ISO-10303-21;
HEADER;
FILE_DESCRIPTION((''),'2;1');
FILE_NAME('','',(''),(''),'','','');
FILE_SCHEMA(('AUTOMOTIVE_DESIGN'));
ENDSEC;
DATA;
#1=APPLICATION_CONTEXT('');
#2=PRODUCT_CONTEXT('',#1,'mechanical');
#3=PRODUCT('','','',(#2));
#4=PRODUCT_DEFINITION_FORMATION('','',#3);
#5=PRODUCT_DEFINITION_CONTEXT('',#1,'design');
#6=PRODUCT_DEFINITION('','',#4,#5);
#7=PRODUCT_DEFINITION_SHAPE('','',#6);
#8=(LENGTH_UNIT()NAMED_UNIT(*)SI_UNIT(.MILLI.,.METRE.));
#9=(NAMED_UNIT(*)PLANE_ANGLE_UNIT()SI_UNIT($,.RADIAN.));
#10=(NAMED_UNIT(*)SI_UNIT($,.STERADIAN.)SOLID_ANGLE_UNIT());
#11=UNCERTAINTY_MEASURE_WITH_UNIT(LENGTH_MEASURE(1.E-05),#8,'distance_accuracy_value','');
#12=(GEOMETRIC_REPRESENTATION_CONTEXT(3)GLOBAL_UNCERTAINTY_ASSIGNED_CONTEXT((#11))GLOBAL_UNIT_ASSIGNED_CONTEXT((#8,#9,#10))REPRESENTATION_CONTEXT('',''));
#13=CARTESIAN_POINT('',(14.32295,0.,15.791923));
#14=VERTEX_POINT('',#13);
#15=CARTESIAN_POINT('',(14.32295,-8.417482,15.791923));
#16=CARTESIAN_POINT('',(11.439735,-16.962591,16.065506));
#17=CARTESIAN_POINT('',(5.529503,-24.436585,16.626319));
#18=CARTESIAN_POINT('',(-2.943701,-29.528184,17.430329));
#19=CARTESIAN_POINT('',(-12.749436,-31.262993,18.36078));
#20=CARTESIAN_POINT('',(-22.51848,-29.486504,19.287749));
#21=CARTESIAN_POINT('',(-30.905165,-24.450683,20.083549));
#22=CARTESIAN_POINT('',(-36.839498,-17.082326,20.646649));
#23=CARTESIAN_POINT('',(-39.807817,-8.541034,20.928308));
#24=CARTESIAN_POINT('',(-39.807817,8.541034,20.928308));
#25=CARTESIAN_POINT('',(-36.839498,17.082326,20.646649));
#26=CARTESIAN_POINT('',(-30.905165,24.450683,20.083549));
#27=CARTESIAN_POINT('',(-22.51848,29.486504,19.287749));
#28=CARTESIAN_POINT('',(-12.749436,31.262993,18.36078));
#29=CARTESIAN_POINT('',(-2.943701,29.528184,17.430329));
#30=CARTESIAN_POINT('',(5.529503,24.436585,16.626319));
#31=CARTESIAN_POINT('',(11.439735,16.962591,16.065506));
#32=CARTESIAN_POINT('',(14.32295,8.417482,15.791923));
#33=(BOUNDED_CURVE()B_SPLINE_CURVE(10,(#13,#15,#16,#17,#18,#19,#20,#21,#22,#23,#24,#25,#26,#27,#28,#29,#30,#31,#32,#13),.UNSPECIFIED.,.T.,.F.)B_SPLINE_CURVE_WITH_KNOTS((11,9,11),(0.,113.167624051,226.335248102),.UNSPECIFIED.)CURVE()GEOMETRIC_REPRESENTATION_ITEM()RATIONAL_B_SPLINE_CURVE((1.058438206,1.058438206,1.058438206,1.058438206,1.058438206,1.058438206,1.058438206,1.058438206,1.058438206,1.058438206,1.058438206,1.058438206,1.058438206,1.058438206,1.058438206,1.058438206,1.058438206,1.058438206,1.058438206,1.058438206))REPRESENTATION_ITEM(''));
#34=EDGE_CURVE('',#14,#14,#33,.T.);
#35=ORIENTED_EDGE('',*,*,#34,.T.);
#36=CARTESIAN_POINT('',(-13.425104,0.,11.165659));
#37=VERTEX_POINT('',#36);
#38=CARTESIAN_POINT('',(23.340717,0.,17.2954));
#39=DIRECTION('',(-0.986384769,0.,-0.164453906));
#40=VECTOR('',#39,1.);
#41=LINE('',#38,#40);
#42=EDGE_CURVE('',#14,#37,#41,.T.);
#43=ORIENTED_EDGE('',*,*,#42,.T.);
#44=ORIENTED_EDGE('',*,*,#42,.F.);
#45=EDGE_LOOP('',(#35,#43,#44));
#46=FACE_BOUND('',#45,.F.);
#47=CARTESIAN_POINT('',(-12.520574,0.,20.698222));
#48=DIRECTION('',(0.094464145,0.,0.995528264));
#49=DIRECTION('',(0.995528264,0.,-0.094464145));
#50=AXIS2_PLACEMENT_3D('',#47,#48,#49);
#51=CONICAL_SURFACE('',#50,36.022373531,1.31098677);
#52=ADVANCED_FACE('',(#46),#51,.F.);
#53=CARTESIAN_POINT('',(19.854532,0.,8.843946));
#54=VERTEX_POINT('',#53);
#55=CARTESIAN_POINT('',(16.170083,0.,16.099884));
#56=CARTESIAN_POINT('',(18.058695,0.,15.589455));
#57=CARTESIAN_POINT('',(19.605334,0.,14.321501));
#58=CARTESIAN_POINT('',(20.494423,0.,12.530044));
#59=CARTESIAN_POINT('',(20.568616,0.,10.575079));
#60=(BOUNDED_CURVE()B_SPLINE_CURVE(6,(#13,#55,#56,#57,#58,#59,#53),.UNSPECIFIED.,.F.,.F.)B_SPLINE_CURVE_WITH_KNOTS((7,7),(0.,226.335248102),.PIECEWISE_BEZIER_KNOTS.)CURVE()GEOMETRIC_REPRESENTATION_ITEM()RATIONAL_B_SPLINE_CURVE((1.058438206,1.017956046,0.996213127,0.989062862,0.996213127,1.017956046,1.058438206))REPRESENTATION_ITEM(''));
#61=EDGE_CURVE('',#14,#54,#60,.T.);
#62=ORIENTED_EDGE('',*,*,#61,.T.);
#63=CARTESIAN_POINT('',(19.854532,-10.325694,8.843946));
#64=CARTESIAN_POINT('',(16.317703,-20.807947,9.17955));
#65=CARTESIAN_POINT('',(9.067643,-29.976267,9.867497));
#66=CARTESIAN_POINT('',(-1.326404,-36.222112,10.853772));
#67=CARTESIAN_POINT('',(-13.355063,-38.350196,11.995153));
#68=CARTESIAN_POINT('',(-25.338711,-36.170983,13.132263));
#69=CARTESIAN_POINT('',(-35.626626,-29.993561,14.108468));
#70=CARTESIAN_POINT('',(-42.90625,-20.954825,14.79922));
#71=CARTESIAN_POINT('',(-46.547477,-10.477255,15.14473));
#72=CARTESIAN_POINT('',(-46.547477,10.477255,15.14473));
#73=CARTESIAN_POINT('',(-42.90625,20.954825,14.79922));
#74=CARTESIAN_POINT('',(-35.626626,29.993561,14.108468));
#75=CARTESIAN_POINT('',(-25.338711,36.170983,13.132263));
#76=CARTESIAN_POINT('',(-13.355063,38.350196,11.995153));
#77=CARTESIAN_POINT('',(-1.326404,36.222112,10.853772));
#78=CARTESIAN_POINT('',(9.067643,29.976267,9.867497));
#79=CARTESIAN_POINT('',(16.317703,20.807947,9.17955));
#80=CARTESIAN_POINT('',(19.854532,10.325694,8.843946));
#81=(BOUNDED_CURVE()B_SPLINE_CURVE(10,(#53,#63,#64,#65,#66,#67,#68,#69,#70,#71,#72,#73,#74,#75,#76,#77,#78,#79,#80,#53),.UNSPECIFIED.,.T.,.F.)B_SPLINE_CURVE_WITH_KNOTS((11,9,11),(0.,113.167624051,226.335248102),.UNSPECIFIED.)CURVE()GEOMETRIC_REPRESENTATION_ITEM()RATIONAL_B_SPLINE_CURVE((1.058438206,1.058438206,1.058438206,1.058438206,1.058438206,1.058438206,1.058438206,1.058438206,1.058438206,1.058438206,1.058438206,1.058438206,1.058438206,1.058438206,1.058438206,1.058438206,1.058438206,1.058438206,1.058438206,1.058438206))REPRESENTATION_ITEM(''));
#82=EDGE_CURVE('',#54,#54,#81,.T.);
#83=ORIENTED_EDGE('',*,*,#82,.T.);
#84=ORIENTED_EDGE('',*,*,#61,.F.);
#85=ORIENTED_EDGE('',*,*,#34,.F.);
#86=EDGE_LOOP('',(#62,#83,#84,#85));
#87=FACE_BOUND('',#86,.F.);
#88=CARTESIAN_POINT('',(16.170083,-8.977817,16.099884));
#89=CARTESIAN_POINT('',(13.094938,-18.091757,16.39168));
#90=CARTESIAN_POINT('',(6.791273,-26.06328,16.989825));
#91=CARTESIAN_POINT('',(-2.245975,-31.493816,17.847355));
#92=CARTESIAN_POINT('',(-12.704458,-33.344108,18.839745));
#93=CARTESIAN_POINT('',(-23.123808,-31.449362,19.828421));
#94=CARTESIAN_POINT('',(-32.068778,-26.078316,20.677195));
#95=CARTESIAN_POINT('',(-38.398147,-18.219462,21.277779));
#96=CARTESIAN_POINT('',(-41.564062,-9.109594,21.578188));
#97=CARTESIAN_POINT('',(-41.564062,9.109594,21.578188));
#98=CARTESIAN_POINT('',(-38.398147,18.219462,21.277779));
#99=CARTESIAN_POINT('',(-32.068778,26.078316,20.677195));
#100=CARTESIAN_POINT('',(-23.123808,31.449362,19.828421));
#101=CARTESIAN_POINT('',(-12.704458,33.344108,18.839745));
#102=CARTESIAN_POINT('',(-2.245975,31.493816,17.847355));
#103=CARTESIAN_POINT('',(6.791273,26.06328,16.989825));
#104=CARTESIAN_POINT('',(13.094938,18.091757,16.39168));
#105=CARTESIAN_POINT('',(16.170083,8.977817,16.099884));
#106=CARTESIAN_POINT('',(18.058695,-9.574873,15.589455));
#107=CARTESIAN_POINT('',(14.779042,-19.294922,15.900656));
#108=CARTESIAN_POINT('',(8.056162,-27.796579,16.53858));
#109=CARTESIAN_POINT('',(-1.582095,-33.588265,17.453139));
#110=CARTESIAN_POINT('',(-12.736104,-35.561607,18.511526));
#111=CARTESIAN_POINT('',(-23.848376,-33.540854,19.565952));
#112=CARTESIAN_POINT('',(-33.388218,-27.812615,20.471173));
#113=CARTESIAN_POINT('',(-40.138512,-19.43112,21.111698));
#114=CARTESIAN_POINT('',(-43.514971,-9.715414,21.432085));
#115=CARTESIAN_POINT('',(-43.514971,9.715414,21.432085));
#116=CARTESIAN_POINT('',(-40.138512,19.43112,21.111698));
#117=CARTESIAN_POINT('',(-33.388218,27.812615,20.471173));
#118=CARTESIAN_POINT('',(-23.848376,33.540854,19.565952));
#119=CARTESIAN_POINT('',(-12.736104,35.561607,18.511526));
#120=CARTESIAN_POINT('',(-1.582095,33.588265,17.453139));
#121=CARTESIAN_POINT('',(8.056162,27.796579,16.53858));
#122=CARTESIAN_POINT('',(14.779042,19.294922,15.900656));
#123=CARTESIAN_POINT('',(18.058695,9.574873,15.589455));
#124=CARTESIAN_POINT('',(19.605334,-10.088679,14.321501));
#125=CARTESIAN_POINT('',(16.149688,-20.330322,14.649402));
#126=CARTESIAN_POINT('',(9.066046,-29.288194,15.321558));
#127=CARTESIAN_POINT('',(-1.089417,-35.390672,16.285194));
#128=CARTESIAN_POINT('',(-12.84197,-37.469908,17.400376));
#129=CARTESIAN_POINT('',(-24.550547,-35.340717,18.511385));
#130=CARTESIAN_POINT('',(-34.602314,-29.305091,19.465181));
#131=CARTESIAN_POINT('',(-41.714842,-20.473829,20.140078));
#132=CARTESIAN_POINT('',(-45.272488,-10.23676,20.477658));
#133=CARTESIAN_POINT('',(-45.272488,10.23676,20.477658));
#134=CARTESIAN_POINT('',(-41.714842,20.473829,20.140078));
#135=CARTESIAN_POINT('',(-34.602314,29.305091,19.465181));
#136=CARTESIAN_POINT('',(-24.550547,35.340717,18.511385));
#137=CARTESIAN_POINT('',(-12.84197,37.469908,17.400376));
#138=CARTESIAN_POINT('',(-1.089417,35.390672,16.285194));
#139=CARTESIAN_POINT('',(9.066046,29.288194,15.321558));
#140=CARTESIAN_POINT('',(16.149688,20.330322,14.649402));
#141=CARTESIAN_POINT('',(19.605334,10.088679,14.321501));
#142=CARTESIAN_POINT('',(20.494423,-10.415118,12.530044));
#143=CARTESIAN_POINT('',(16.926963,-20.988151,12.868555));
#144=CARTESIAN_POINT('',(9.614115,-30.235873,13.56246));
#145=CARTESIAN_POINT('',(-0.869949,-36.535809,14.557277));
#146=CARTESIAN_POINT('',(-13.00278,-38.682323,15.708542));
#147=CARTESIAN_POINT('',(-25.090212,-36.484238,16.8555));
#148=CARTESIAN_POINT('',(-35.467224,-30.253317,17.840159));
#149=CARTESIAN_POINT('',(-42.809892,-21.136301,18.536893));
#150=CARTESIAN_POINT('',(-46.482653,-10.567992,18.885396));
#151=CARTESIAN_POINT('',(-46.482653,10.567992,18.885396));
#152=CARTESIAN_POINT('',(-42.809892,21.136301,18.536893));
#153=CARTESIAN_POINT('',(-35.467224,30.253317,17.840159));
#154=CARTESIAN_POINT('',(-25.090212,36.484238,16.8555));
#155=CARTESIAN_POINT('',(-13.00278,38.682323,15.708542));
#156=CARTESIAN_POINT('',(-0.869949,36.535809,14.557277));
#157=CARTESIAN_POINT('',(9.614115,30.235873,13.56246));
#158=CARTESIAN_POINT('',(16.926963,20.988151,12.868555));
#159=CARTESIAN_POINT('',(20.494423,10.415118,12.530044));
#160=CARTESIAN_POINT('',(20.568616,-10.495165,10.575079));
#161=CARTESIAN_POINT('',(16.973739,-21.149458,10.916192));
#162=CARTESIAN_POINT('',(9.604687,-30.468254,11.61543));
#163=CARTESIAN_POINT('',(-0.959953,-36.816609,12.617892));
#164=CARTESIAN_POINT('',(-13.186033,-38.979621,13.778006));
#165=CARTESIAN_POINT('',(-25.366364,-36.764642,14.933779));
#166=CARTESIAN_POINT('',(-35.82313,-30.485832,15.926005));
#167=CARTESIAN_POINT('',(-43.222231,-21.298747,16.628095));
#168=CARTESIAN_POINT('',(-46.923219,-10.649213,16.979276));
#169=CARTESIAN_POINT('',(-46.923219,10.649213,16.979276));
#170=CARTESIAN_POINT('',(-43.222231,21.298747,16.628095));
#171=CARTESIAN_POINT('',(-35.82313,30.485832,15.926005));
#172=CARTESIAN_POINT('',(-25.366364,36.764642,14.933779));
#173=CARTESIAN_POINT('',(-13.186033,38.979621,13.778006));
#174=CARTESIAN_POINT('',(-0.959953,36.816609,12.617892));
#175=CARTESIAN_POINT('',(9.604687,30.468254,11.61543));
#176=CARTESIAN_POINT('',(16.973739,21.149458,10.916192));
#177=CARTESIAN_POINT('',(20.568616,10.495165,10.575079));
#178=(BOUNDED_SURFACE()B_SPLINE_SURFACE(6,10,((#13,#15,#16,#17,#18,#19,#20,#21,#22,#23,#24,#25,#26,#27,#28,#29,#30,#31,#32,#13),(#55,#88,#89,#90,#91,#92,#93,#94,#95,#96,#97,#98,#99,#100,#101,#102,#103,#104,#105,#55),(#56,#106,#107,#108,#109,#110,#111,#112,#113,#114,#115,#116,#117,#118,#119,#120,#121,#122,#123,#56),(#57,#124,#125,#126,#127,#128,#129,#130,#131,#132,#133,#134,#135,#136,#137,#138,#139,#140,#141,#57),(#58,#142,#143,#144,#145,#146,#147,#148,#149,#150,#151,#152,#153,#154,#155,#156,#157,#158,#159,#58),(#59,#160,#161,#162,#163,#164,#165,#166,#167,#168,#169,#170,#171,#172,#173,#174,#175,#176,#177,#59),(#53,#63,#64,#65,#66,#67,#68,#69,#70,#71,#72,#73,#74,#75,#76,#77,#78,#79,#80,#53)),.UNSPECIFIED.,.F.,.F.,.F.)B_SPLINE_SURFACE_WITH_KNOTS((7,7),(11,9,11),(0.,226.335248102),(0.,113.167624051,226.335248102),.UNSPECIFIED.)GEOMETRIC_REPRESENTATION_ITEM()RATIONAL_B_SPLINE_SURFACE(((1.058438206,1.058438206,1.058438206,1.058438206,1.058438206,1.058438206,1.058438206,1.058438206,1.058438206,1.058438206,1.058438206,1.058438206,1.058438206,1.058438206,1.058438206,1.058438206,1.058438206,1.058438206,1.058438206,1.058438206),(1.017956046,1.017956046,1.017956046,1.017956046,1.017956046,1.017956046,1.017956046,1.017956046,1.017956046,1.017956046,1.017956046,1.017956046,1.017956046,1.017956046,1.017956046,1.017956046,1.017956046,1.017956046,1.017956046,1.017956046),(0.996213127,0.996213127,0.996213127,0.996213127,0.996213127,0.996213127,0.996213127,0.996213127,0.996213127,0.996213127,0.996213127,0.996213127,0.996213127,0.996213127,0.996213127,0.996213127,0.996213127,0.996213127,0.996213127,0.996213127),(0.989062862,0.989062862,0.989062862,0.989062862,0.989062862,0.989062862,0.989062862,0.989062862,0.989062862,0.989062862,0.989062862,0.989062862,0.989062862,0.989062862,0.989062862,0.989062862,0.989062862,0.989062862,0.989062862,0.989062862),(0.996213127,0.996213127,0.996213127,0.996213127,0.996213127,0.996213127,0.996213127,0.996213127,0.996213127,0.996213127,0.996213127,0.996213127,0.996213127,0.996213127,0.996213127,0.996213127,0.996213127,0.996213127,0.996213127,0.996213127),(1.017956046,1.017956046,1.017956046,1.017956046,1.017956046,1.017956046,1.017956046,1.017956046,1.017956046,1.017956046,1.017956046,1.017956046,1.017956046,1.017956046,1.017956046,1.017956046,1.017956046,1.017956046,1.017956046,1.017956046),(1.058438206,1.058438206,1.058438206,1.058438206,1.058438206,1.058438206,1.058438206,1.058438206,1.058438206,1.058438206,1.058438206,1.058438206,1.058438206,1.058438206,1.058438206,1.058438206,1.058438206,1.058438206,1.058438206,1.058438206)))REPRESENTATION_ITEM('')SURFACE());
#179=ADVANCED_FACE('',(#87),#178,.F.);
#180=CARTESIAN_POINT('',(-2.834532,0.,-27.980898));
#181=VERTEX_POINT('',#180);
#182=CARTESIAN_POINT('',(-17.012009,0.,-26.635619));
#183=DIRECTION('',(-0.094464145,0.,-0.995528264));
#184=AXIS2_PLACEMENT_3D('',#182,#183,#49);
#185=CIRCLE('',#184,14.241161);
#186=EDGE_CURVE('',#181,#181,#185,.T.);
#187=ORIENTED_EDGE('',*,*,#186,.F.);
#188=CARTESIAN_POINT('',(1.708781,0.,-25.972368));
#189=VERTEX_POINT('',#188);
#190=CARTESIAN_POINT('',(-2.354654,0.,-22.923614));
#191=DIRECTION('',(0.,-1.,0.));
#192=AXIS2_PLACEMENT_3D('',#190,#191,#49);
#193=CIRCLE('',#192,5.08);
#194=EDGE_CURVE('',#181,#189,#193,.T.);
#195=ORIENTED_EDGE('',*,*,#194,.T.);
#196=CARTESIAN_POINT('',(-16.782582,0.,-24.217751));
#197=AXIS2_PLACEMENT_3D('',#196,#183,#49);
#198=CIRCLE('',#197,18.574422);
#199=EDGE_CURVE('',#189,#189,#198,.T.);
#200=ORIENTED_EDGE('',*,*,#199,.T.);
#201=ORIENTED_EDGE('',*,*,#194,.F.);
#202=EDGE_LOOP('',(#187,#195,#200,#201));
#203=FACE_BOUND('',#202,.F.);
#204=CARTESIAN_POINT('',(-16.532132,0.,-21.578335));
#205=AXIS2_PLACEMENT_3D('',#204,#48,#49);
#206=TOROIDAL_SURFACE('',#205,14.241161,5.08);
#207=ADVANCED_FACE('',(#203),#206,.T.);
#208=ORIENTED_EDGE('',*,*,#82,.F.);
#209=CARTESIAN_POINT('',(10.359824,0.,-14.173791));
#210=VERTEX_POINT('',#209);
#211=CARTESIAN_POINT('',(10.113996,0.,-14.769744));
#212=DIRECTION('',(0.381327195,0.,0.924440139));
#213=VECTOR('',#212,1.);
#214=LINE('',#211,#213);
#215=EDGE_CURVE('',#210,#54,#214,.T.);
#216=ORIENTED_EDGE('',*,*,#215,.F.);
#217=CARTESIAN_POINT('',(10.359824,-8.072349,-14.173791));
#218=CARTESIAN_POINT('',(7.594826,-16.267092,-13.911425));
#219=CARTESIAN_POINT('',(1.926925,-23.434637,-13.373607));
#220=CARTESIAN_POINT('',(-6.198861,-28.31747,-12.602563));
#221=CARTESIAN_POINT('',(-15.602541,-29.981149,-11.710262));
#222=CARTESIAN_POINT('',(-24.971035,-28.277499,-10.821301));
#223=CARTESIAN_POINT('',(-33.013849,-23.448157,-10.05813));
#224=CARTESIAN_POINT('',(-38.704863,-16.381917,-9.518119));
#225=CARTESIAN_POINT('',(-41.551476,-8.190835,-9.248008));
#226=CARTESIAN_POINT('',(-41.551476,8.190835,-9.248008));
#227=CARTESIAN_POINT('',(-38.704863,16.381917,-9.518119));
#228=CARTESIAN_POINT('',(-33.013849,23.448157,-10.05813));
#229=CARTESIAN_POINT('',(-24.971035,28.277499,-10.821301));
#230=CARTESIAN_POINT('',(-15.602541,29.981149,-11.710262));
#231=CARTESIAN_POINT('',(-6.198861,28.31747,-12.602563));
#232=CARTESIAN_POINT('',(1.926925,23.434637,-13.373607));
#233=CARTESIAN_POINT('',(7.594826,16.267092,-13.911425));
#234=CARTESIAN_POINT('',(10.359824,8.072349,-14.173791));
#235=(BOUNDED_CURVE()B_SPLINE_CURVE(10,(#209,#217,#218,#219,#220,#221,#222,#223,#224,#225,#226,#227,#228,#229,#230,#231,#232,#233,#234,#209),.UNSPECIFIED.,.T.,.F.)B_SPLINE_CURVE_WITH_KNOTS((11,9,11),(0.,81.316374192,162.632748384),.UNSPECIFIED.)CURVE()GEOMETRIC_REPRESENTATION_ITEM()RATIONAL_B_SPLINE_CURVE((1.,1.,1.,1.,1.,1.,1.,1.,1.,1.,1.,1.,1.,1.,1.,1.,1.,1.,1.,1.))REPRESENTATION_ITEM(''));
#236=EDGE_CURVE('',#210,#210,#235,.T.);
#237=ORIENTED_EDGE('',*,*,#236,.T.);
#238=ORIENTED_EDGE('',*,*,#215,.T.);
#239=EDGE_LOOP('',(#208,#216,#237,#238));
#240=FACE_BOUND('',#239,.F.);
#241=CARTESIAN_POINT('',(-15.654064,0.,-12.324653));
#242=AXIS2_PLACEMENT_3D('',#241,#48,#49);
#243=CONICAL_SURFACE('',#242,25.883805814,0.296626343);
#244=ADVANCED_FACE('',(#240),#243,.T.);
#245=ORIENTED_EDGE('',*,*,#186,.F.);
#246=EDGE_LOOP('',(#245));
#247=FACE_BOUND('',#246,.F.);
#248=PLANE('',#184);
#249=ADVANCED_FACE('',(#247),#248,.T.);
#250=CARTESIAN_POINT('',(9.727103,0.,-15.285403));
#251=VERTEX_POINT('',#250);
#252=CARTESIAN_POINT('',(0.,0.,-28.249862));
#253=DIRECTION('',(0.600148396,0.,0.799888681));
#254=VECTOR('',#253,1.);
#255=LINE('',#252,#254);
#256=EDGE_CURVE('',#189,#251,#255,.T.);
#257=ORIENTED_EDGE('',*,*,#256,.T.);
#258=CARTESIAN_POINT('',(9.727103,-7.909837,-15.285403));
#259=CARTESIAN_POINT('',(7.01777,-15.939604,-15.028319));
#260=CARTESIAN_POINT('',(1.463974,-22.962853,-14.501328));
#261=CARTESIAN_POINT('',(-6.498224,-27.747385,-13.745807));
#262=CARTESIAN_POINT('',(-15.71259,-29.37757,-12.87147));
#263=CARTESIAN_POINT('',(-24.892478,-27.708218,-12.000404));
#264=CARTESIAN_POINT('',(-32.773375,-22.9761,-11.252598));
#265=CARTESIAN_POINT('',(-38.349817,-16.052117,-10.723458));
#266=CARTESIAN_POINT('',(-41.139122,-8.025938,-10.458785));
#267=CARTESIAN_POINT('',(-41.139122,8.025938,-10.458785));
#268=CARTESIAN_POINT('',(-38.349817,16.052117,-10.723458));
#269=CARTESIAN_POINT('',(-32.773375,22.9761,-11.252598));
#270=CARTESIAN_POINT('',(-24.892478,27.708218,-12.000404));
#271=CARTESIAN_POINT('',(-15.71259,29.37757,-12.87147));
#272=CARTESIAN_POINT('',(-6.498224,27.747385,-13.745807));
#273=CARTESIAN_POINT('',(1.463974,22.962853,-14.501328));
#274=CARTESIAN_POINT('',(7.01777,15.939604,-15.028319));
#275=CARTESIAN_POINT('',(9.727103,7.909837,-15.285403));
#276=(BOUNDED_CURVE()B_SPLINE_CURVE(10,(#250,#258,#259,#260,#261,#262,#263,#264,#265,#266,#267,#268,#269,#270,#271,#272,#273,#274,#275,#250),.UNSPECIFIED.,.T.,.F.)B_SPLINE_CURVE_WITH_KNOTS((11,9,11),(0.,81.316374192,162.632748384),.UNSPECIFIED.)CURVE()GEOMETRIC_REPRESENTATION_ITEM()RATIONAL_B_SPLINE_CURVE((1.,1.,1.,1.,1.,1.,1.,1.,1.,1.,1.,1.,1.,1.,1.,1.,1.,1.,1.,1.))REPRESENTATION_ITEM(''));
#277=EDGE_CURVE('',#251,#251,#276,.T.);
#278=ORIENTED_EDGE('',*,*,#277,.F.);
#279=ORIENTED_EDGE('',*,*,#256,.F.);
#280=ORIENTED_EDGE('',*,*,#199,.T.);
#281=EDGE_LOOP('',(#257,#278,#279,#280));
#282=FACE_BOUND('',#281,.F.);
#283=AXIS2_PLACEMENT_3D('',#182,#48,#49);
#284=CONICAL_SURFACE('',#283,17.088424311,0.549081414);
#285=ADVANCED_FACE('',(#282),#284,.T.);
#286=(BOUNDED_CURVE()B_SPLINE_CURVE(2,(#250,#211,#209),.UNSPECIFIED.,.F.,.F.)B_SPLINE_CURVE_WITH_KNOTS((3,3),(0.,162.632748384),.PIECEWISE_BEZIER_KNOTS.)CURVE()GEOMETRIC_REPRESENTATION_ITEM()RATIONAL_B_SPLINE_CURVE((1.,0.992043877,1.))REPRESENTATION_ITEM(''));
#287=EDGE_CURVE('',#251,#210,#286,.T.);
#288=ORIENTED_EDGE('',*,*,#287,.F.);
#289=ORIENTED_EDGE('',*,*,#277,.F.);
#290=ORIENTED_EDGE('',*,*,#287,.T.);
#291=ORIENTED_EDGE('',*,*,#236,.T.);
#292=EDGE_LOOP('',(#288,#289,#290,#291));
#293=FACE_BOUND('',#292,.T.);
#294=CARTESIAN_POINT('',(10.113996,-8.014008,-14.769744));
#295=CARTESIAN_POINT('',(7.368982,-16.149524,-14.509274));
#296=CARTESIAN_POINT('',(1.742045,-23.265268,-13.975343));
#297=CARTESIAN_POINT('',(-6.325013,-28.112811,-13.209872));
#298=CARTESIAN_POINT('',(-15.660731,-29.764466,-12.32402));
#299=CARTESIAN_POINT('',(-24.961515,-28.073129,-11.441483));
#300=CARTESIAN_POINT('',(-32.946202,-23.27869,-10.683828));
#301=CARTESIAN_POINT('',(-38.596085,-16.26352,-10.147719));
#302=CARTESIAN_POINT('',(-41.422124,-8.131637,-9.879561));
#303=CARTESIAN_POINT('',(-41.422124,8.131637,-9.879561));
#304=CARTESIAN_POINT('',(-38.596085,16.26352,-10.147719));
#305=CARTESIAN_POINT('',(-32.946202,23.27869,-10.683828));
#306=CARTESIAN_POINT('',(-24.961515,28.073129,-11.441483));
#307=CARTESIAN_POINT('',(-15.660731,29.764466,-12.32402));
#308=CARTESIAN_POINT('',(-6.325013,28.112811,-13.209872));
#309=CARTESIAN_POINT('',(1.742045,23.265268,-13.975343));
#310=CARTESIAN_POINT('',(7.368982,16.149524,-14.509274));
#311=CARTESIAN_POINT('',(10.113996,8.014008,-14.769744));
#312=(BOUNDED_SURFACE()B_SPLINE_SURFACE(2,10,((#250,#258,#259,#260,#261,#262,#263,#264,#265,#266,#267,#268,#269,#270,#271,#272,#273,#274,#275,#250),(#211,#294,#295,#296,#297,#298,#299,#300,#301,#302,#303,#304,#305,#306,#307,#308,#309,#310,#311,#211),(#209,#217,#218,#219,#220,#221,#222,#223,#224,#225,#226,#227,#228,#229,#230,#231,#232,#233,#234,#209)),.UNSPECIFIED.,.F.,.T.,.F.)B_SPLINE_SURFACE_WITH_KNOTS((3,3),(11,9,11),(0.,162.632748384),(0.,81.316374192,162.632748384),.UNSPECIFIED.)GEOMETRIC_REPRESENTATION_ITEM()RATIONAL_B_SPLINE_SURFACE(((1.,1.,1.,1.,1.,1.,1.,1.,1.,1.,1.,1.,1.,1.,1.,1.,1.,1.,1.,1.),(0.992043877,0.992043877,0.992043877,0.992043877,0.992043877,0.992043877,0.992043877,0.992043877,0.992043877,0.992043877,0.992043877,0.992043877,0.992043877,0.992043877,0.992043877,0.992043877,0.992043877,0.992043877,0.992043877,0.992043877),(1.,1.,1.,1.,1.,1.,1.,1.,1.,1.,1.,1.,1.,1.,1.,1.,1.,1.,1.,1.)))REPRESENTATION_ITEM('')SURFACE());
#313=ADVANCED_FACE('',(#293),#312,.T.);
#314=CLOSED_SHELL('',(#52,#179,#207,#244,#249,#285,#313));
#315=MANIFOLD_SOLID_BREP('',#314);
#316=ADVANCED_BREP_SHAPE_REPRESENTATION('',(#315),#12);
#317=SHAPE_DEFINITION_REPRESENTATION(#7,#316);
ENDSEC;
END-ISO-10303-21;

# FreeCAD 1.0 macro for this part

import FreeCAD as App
import Part
import Sketcher

V = App.Vector
Q = App.Units.Quantity


def add_polygon(sketch, points):
    """Adds a closed chain of lines whose ends are joined by coincident constraints."""
    first, n = sketch.GeometryCount, len(points)
    for a, b in zip(points, points[1:] + points[:1]):
        sketch.addGeometry(Part.LineSegment(App.Vector(*a, 0), App.Vector(*b, 0)), False)
    for i in range(n):
        sketch.addConstraint(Sketcher.Constraint("Coincident", first + i, 2, first + (i + 1) % n, 1))

doc = App.newDocument("Part")
body = doc.addObject("PartDesign::Body", "Body")

# Sketch on XZ plane
sketch1 = body.newObject("Sketcher::SketchObject", "Sketch")
sketch1.AttachmentSupport = (doc.getObject("XZ_Plane"), [""])
sketch1.MapMode = "FlatFace"
add_polygon(sketch1, [(23, 17), (-13, 11), (-17, -27), (0, -28), (10, -15)])  # lines 0-4
sketch1.addGeometry(Part.LineSegment(V(-13, 21, 0), V(-17, -27, 0)), True)  # axis
sketch1.addConstraint([
    Sketcher.Constraint("Coincident", 5, 2, 1, 2),
    Sketcher.Constraint("PointOnObject", 2, 2, -2),
    Sketcher.Constraint("Perpendicular", 1, 2),
    Sketcher.Constraint("Perpendicular", 2, 5),
    Sketcher.Constraint("DistanceY", -1, 1, 4, 2, Q("17.2954 mm")),
    Sketcher.Constraint("DistanceX", 0, 2, 3, 2, Q("23.539101 mm")),
    Sketcher.Constraint("DistanceY", -1, 1, 0, 2, Q("11.165659 mm")),
    Sketcher.Constraint("DistanceX", 1, 2, -1, 1, Q("17.012009 mm")),
    Sketcher.Constraint("DistanceY", 1, 2, -1, 1, Q("26.635619 mm")),
    Sketcher.Constraint("DistanceY", 2, 2, 0, 2, Q("39.415521 mm")),
    Sketcher.Constraint("DistanceY", 2, 2, 3, 2, Q("13.480118 mm")),
    Sketcher.Constraint("DistanceX", 3, 2, 4, 2, Q("13.226721 mm")),
    Sketcher.Constraint("DistanceX", 0, 2, 5, 1, Q("0.90453 mm")),
])
revolution = body.newObject("PartDesign::Revolution", "Revolution")
revolution.Profile = sketch1
revolution.ReferenceAxis = (sketch1, ["Axis0"])
revolution.Angle = 360
doc.recompute()

fillet = body.newObject("PartDesign::Fillet", "Fillet")
fillet.Base = (revolution, ["Edge1"])
fillet.UseAllEdges = True
fillet.Radius = Q("0.2 in")

doc.recompute()
